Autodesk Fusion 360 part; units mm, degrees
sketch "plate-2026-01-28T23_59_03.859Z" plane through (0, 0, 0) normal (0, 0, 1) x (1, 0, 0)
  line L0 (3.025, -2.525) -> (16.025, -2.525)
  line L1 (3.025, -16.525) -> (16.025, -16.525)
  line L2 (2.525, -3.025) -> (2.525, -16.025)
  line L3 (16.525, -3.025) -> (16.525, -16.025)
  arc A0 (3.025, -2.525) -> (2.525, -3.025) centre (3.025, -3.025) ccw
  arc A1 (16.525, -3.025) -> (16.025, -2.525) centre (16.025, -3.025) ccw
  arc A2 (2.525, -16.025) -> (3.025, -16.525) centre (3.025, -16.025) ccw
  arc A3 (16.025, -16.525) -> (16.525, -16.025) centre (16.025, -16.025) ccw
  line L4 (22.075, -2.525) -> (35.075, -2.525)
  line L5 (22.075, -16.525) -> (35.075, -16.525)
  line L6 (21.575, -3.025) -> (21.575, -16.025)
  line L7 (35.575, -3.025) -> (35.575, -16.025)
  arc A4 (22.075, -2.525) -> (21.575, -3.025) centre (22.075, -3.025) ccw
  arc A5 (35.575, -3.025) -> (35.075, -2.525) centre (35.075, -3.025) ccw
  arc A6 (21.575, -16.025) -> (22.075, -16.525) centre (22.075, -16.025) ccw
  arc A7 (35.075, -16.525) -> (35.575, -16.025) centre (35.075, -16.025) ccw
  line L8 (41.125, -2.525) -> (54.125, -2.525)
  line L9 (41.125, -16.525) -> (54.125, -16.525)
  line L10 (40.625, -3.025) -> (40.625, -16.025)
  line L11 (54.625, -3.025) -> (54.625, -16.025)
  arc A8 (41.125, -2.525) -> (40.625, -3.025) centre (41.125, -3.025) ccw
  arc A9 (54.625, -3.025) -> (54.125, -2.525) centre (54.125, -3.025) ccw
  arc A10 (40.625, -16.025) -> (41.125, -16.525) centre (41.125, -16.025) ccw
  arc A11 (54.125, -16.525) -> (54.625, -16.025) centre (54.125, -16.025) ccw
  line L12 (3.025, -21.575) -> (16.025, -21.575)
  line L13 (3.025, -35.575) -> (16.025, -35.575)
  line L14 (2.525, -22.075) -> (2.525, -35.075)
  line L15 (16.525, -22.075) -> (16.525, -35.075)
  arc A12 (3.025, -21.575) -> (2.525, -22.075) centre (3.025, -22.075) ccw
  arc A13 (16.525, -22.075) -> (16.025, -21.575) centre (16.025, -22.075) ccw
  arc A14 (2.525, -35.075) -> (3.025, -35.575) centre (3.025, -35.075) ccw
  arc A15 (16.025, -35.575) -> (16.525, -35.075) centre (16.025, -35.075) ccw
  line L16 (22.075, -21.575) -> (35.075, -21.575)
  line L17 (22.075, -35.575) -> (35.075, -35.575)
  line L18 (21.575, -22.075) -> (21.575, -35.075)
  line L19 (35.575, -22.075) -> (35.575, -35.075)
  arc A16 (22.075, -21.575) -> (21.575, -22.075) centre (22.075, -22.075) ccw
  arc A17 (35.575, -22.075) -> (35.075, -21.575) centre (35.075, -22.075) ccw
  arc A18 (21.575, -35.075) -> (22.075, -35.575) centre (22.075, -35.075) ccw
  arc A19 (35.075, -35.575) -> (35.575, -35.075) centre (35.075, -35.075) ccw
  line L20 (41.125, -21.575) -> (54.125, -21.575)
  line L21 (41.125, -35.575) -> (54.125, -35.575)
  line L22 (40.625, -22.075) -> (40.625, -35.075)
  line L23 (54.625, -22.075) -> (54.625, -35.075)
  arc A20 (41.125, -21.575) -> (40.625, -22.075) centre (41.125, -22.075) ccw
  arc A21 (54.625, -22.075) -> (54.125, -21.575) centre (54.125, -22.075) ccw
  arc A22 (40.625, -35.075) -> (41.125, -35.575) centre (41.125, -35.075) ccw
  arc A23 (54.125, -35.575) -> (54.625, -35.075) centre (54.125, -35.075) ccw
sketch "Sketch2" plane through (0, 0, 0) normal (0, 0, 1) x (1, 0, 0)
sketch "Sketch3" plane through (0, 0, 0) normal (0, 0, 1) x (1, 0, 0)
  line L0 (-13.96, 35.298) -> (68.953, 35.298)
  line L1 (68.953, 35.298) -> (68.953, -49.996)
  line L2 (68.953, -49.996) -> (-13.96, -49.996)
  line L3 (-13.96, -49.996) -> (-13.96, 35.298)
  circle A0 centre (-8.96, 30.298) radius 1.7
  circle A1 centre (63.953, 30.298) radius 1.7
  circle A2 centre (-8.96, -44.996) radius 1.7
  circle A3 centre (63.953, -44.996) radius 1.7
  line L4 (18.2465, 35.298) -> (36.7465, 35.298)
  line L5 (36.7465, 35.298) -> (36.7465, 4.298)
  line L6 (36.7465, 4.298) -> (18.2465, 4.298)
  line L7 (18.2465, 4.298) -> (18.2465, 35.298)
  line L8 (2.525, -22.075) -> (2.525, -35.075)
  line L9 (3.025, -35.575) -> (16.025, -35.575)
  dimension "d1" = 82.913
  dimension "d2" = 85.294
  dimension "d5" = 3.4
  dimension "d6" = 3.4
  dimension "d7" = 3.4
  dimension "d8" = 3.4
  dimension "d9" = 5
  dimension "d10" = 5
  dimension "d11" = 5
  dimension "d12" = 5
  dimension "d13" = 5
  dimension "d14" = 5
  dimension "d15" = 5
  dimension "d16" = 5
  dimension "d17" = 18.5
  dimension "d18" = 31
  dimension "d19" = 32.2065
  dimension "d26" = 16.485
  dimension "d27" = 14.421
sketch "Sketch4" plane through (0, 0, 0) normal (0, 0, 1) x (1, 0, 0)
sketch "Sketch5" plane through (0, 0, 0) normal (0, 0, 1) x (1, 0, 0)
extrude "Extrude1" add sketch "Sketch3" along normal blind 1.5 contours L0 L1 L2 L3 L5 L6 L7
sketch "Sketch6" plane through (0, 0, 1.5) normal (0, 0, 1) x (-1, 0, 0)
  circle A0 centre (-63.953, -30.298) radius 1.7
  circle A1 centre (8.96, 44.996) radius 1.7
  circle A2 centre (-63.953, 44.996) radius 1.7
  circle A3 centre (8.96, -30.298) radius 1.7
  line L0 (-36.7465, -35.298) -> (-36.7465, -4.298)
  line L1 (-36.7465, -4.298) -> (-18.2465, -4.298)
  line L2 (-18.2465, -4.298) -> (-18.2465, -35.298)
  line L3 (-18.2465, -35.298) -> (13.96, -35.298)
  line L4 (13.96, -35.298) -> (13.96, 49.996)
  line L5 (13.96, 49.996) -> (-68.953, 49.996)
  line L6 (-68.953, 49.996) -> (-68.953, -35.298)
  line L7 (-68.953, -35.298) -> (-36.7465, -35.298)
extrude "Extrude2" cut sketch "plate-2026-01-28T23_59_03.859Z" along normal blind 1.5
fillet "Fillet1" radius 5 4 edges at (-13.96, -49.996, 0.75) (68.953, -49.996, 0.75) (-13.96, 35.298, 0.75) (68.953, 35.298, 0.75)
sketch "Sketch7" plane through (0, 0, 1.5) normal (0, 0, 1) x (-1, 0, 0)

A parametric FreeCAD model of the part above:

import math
import FreeCAD as App
import Part
import Sketcher

V = App.Vector
Q = App.Units.Quantity


def edges_at(feature, points):
    """Names of the edges that pass closest to the given points."""
    edges = feature.Shape.Edges
    near = lambda p: min(range(len(edges)), key=lambda i: edges[i].distToShape(Part.Vertex(*p))[0])
    return sorted({f"Edge{near(p) + 1}" for p in points})


def add_polygon(sketch, points):
    """Adds a closed chain of lines whose ends are joined by coincident constraints."""
    first, n = sketch.GeometryCount, len(points)
    for a, b in zip(points, points[1:] + points[:1]):
        sketch.addGeometry(Part.LineSegment(App.Vector(*a, 0), App.Vector(*b, 0)), False)
    for i in range(n):
        sketch.addConstraint(Sketcher.Constraint("Coincident", first + i, 2, first + (i + 1) % n, 1))

doc = App.newDocument("Part")
body = doc.addObject("PartDesign::Body", "Body")

sketch1 = body.newObject("Sketcher::SketchObject", "Sketch")
sketch1.AttachmentSupport = (doc.getObject("XY_Plane"), [""])
sketch1.MapMode = "FlatFace"
add_polygon(sketch1, [(18.2465, 35.298), (-13.96, 35.298), (-13.96, -49.996), (68.953, -49.996), (68.953, 35.298), (36.7465, 35.298), (36.7465, 4.298), (18.2465, 4.298)])
sketch1.addGeometry(Part.Circle(V(-8.96, -44.996, 0), V(0, 0, 1), 1.7), False)
sketch1.addGeometry(Part.Circle(V(63.953, -44.996, 0), V(0, 0, 1), 1.7), False)
sketch1.addGeometry(Part.Circle(V(-8.96, 30.298, 0), V(0, 0, 1), 1.7), False)
sketch1.addGeometry(Part.Circle(V(63.953, 30.298, 0), V(0, 0, 1), 1.7), False)
sketch1.addConstraint([
    Sketcher.Constraint("Horizontal", 0),
    Sketcher.Constraint("Vertical", 1),
    Sketcher.Constraint("Horizontal", 2),
    Sketcher.Constraint("Vertical", 3),
    Sketcher.Constraint("Horizontal", 4),
    Sketcher.Constraint("Vertical", 5),
    Sketcher.Constraint("Horizontal", 6),
    Sketcher.Constraint("Vertical", 7),
    Sketcher.Constraint("Equal", 8, 9),
    Sketcher.Constraint("Equal", 9, 10),
    Sketcher.Constraint("Equal", 10, 11),
    Sketcher.Constraint("Horizontal", 8, 3, 9, 3),
    Sketcher.Constraint("Horizontal", 10, 3, 11, 3),
    Sketcher.Constraint("Horizontal", 0, 2, 3, 2),
    Sketcher.Constraint("Vertical", 8, 3, 10, 3),
    Sketcher.Constraint("Vertical", 9, 3, 11, 3),
    Sketcher.Constraint("Equal", 0, 4),
    Sketcher.Constraint("Diameter", 8, Q("3.4 mm")),
    Sketcher.Constraint("DistanceY", 5, 2, 5, 1, Q("31 mm")),
    Sketcher.Constraint("DistanceX", 6, 2, 6, 1, Q("18.5 mm")),
    Sketcher.Constraint("DistanceX", 0, 2, 10, 3, Q("5 mm")),
    Sketcher.Constraint("DistanceY", 10, 3, 0, 2, Q("5 mm")),
    Sketcher.Constraint("DistanceY", 1, 2, 8, 3, Q("5 mm")),
    Sketcher.Constraint("DistanceX", 9, 3, 2, 2, Q("5 mm")),
    Sketcher.Constraint("DistanceX", 2, 1, 2, 2, Q("82.913 mm")),
    Sketcher.Constraint("DistanceY", 1, 2, 1, 1, Q("85.294 mm")),
    Sketcher.Constraint("DistanceX", 8, 3, -1, 1, Q("8.96 mm")),
    Sketcher.Constraint("DistanceY", 8, 3, -1, 1, Q("44.996 mm")),
])
pad1 = body.newObject("PartDesign::Pad", "Pad")
pad1.Profile = sketch1
pad1.Length = 1.5

sketch2 = body.newObject("Sketcher::SketchObject", "Sketch001")
sketch2.AttachmentSupport = (doc.getObject("XY_Plane"), [""])
sketch2.MapMode = "FlatFace"
sketch2.addGeometry([
    Part.LineSegment(V(16.025, -2.525, 0), V(3.025, -2.525, 0)),
    Part.ArcOfCircle(Part.Circle(V(3.025, -3.025, 0), V(0, 0, 1), 0.5), math.radians(90), math.radians(180)),
    Part.LineSegment(V(2.525, -3.025, 0), V(2.525, -16.025, 0)),
    Part.ArcOfCircle(Part.Circle(V(3.025, -16.025, 0), V(0, 0, 1), 0.5), math.radians(180), math.radians(270)),
    Part.LineSegment(V(3.025, -16.525, 0), V(16.025, -16.525, 0)),
    Part.ArcOfCircle(Part.Circle(V(16.025, -16.025, 0), V(0, 0, 1), 0.5), math.radians(-90), math.radians(0)),
    Part.LineSegment(V(16.525, -16.025, 0), V(16.525, -3.025, 0)),
    Part.ArcOfCircle(Part.Circle(V(16.025, -3.025, 0), V(0, 0, 1), 0.5), math.radians(0), math.radians(90)),
    Part.LineSegment(V(35.075, -2.525, 0), V(22.075, -2.525, 0)),
    Part.ArcOfCircle(Part.Circle(V(22.075, -3.025, 0), V(0, 0, 1), 0.5), math.radians(90), math.radians(180)),
    Part.LineSegment(V(21.575, -3.025, 0), V(21.575, -16.025, 0)),
    Part.ArcOfCircle(Part.Circle(V(22.075, -16.025, 0), V(0, 0, 1), 0.5), math.radians(180), math.radians(270)),
    Part.LineSegment(V(22.075, -16.525, 0), V(35.075, -16.525, 0)),
    Part.ArcOfCircle(Part.Circle(V(35.075, -16.025, 0), V(0, 0, 1), 0.5), math.radians(-90), math.radians(0)),
    Part.LineSegment(V(35.575, -16.025, 0), V(35.575, -3.025, 0)),
    Part.ArcOfCircle(Part.Circle(V(35.075, -3.025, 0), V(0, 0, 1), 0.5), math.radians(0), math.radians(90)),
    Part.LineSegment(V(54.125, -2.525, 0), V(41.125, -2.525, 0)),
    Part.ArcOfCircle(Part.Circle(V(41.125, -3.025, 0), V(0, 0, 1), 0.5), math.radians(90), math.radians(180)),
    Part.LineSegment(V(40.625, -3.025, 0), V(40.625, -16.025, 0)),
    Part.ArcOfCircle(Part.Circle(V(41.125, -16.025, 0), V(0, 0, 1), 0.5), math.radians(180), math.radians(270)),
    Part.LineSegment(V(41.125, -16.525, 0), V(54.125, -16.525, 0)),
    Part.ArcOfCircle(Part.Circle(V(54.125, -16.025, 0), V(0, 0, 1), 0.5), math.radians(-90), math.radians(0)),
    Part.LineSegment(V(54.625, -16.025, 0), V(54.625, -3.025, 0)),
    Part.ArcOfCircle(Part.Circle(V(54.125, -3.025, 0), V(0, 0, 1), 0.5), math.radians(0), math.radians(90)),
    Part.LineSegment(V(16.025, -21.575, 0), V(3.025, -21.575, 0)),
    Part.ArcOfCircle(Part.Circle(V(3.025, -22.075, 0), V(0, 0, 1), 0.5), math.radians(90), math.radians(180)),
    Part.LineSegment(V(2.525, -22.075, 0), V(2.525, -35.075, 0)),
    Part.ArcOfCircle(Part.Circle(V(3.025, -35.075, 0), V(0, 0, 1), 0.5), math.radians(180), math.radians(270)),
    Part.LineSegment(V(3.025, -35.575, 0), V(16.025, -35.575, 0)),
    Part.ArcOfCircle(Part.Circle(V(16.025, -35.075, 0), V(0, 0, 1), 0.5), math.radians(-90), math.radians(0)),
    Part.LineSegment(V(16.525, -35.075, 0), V(16.525, -22.075, 0)),
    Part.ArcOfCircle(Part.Circle(V(16.025, -22.075, 0), V(0, 0, 1), 0.5), math.radians(0), math.radians(90)),
    Part.LineSegment(V(35.075, -21.575, 0), V(22.075, -21.575, 0)),
    Part.ArcOfCircle(Part.Circle(V(22.075, -22.075, 0), V(0, 0, 1), 0.5), math.radians(90), math.radians(180)),
    Part.LineSegment(V(21.575, -22.075, 0), V(21.575, -35.075, 0)),
    Part.ArcOfCircle(Part.Circle(V(22.075, -35.075, 0), V(0, 0, 1), 0.5), math.radians(180), math.radians(270)),
    Part.LineSegment(V(22.075, -35.575, 0), V(35.075, -35.575, 0)),
    Part.ArcOfCircle(Part.Circle(V(35.075, -35.075, 0), V(0, 0, 1), 0.5), math.radians(-90), math.radians(0)),
    Part.LineSegment(V(35.575, -35.075, 0), V(35.575, -22.075, 0)),
    Part.ArcOfCircle(Part.Circle(V(35.075, -22.075, 0), V(0, 0, 1), 0.5), math.radians(0), math.radians(90)),
    Part.LineSegment(V(54.125, -21.575, 0), V(41.125, -21.575, 0)),
    Part.ArcOfCircle(Part.Circle(V(41.125, -22.075, 0), V(0, 0, 1), 0.5), math.radians(90), math.radians(180)),
    Part.LineSegment(V(40.625, -22.075, 0), V(40.625, -35.075, 0)),
    Part.ArcOfCircle(Part.Circle(V(41.125, -35.075, 0), V(0, 0, 1), 0.5), math.radians(180), math.radians(270)),
    Part.LineSegment(V(41.125, -35.575, 0), V(54.125, -35.575, 0)),
    Part.ArcOfCircle(Part.Circle(V(54.125, -35.075, 0), V(0, 0, 1), 0.5), math.radians(-90), math.radians(0)),
    Part.LineSegment(V(54.625, -35.075, 0), V(54.625, -22.075, 0)),
    Part.ArcOfCircle(Part.Circle(V(54.125, -22.075, 0), V(0, 0, 1), 0.5), math.radians(0), math.radians(90)),
], False)
sketch2.addConstraint([
    Sketcher.Constraint("Tangent", 0, 2, 1, 1),
    Sketcher.Constraint("Tangent", 1, 2, 2, 1),
    Sketcher.Constraint("Tangent", 2, 2, 3, 1),
    Sketcher.Constraint("Tangent", 3, 2, 4, 1),
    Sketcher.Constraint("Tangent", 4, 2, 5, 1),
    Sketcher.Constraint("Tangent", 5, 2, 6, 1),
    Sketcher.Constraint("Tangent", 6, 2, 7, 1),
    Sketcher.Constraint("Tangent", 7, 2, 0, 1),
    Sketcher.Constraint("Tangent", 8, 2, 9, 1),
    Sketcher.Constraint("Tangent", 9, 2, 10, 1),
    Sketcher.Constraint("Tangent", 10, 2, 11, 1),
    Sketcher.Constraint("Tangent", 11, 2, 12, 1),
    Sketcher.Constraint("Tangent", 12, 2, 13, 1),
    Sketcher.Constraint("Tangent", 13, 2, 14, 1),
    Sketcher.Constraint("Tangent", 14, 2, 15, 1),
    Sketcher.Constraint("Tangent", 15, 2, 8, 1),
    Sketcher.Constraint("Tangent", 16, 2, 17, 1),
    Sketcher.Constraint("Tangent", 17, 2, 18, 1),
    Sketcher.Constraint("Tangent", 18, 2, 19, 1),
    Sketcher.Constraint("Tangent", 19, 2, 20, 1),
    Sketcher.Constraint("Tangent", 20, 2, 21, 1),
    Sketcher.Constraint("Tangent", 21, 2, 22, 1),
    Sketcher.Constraint("Tangent", 22, 2, 23, 1),
    Sketcher.Constraint("Tangent", 23, 2, 16, 1),
    Sketcher.Constraint("Tangent", 24, 2, 25, 1),
    Sketcher.Constraint("Tangent", 25, 2, 26, 1),
    Sketcher.Constraint("Tangent", 26, 2, 27, 1),
    Sketcher.Constraint("Tangent", 27, 2, 28, 1),
    Sketcher.Constraint("Tangent", 28, 2, 29, 1),
    Sketcher.Constraint("Tangent", 29, 2, 30, 1),
    Sketcher.Constraint("Tangent", 30, 2, 31, 1),
    Sketcher.Constraint("Tangent", 31, 2, 24, 1),
    Sketcher.Constraint("Tangent", 32, 2, 33, 1),
    Sketcher.Constraint("Tangent", 33, 2, 34, 1),
    Sketcher.Constraint("Tangent", 34, 2, 35, 1),
    Sketcher.Constraint("Tangent", 35, 2, 36, 1),
    Sketcher.Constraint("Tangent", 36, 2, 37, 1),
    Sketcher.Constraint("Tangent", 37, 2, 38, 1),
    Sketcher.Constraint("Tangent", 38, 2, 39, 1),
    Sketcher.Constraint("Tangent", 39, 2, 32, 1),
    Sketcher.Constraint("Tangent", 40, 2, 41, 1),
    Sketcher.Constraint("Tangent", 41, 2, 42, 1),
    Sketcher.Constraint("Tangent", 42, 2, 43, 1),
    Sketcher.Constraint("Tangent", 43, 2, 44, 1),
    Sketcher.Constraint("Tangent", 44, 2, 45, 1),
    Sketcher.Constraint("Tangent", 45, 2, 46, 1),
    Sketcher.Constraint("Tangent", 46, 2, 47, 1),
    Sketcher.Constraint("Tangent", 47, 2, 40, 1),
    Sketcher.Constraint("Horizontal", 0),
    Sketcher.Constraint("Vertical", 2),
    Sketcher.Constraint("Horizontal", 4),
    Sketcher.Constraint("Vertical", 6),
    Sketcher.Constraint("Horizontal", 8),
    Sketcher.Constraint("Vertical", 10),
    Sketcher.Constraint("Horizontal", 12),
    Sketcher.Constraint("Vertical", 14),
    Sketcher.Constraint("Horizontal", 16),
    Sketcher.Constraint("Vertical", 18),
    Sketcher.Constraint("Horizontal", 20),
    Sketcher.Constraint("Vertical", 22),
    Sketcher.Constraint("Horizontal", 24),
    Sketcher.Constraint("Vertical", 26),
    Sketcher.Constraint("Horizontal", 28),
    Sketcher.Constraint("Vertical", 30),
    Sketcher.Constraint("Horizontal", 32),
    Sketcher.Constraint("Vertical", 34),
    Sketcher.Constraint("Horizontal", 36),
    Sketcher.Constraint("Vertical", 38),
    Sketcher.Constraint("Horizontal", 40),
    Sketcher.Constraint("Vertical", 42),
    Sketcher.Constraint("Horizontal", 44),
    Sketcher.Constraint("Vertical", 46),
    Sketcher.Constraint("Equal", 1, 3),
    Sketcher.Constraint("Equal", 3, 5),
    Sketcher.Constraint("Equal", 5, 7),
    Sketcher.Constraint("Equal", 7, 9),
    Sketcher.Constraint("Equal", 9, 11),
    Sketcher.Constraint("Equal", 11, 13),
    Sketcher.Constraint("Equal", 13, 15),
    Sketcher.Constraint("Equal", 15, 17),
    Sketcher.Constraint("Equal", 17, 19),
    Sketcher.Constraint("Equal", 19, 21),
    Sketcher.Constraint("Equal", 21, 23),
    Sketcher.Constraint("Equal", 23, 25),
    Sketcher.Constraint("Equal", 25, 27),
    Sketcher.Constraint("Equal", 27, 29),
    Sketcher.Constraint("Equal", 29, 31),
    Sketcher.Constraint("Equal", 31, 33),
    Sketcher.Constraint("Equal", 33, 35),
    Sketcher.Constraint("Equal", 35, 37),
    Sketcher.Constraint("Equal", 37, 39),
    Sketcher.Constraint("Equal", 39, 41),
    Sketcher.Constraint("Equal", 41, 43),
    Sketcher.Constraint("Equal", 43, 45),
    Sketcher.Constraint("Equal", 45, 47),
    Sketcher.Constraint("Horizontal", 7, 3, 9, 3),
    Sketcher.Constraint("Horizontal", 5, 3, 11, 3),
    Sketcher.Constraint("Horizontal", 15, 3, 17, 3),
    Sketcher.Constraint("Horizontal", 13, 3, 19, 3),
    Sketcher.Constraint("Horizontal", 31, 3, 33, 3),
    Sketcher.Constraint("Horizontal", 29, 3, 35, 3),
    Sketcher.Constraint("Horizontal", 39, 3, 41, 3),
    Sketcher.Constraint("Horizontal", 37, 3, 43, 3),
    Sketcher.Constraint("Vertical", 3, 3, 25, 3),
    Sketcher.Constraint("Vertical", 7, 3, 29, 3),
    Sketcher.Constraint("Vertical", 11, 3, 33, 3),
    Sketcher.Constraint("Vertical", 15, 3, 37, 3),
    Sketcher.Constraint("Vertical", 19, 3, 41, 3),
    Sketcher.Constraint("Vertical", 23, 3, 45, 3),
    Sketcher.Constraint("Equal", 4, 8),
    Sketcher.Constraint("Equal", 12, 16),
    Sketcher.Constraint("Equal", 44, 2),
    Sketcher.Constraint("Equal", 22, 26),
    Sketcher.Constraint("Radius", 1, Q("0.5 mm")),
    Sketcher.Constraint("DistanceX", 0, 2, 0, 1, Q("13 mm")),
    Sketcher.Constraint("DistanceX", -1, 1, 1, 3, Q("3.025 mm")),
    Sketcher.Constraint("DistanceY", 1, 3, -1, 1, Q("3.025 mm")),
    Sketcher.Constraint("DistanceX", -1, 1, 9, 3, Q("22.075 mm")),
    Sketcher.Constraint("DistanceX", -1, 1, 17, 3, Q("41.125 mm")),
    Sketcher.Constraint("DistanceY", 25, 3, -1, 1, Q("22.075 mm")),
])
pocket1 = body.newObject("PartDesign::Pocket", "Pocket")
pocket1.Profile = sketch2
pocket1.Length = 1.5
pocket1.Reversed = True
doc.recompute()

fillet = body.newObject("PartDesign::Fillet", "Fillet")
fillet.Base = (pocket1, edges_at(pocket1, [
    (-13.96, -49.996, 0.75),
    (68.953, -49.996, 0.75),
    (-13.96, 35.298, 0.75),
    (68.953, 35.298, 0.75),
]))
fillet.Radius = 5

doc.recompute()
